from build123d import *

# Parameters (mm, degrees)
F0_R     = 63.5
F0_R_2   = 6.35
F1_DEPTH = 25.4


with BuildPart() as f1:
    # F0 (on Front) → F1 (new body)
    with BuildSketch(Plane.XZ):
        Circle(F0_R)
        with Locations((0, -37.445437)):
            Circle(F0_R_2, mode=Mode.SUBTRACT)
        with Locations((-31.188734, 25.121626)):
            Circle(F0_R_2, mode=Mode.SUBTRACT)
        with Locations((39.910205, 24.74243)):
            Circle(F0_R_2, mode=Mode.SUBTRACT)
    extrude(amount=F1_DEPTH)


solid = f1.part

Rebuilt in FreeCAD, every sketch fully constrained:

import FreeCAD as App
import Part
import Sketcher

V = App.Vector
Q = App.Units.Quantity

doc = App.newDocument("Part")
params = doc.addObject("Spreadsheet::Sheet", "Params")
for row, (alias, value) in enumerate([
    ("sketch1_diameter", "5 in"),
    ("sketch1_diameter2", "0.5 in"),
    ("pad1_length", "1 in"),
], start=1):
    params.set(f"A{row}", alias)
    params.set(f"B{row}", "=" + value)
    params.setAlias(f"B{row}", alias)

body = doc.addObject("PartDesign::Body", "Body")

# Sketch on XZ plane
sketch1 = body.newObject("Sketcher::SketchObject", "Sketch")
sketch1.AttachmentSupport = (doc.getObject("XZ_Plane"), [""])
sketch1.MapMode = "FlatFace"
sketch1.addGeometry(Part.Circle(V(0, 0, 0), V(0, 0, 1), 63.5), False)
sketch1.addGeometry(Part.Circle(V(0, -37.445437, 0), V(0, 0, 1), 6.35), False)
sketch1.addGeometry(Part.Circle(V(-31.188734, 25.121626, 0), V(0, 0, 1), 6.35), False)
sketch1.addGeometry(Part.Circle(V(39.910205, 24.74243, 0), V(0, 0, 1), 6.35), False)
sketch1.addConstraint(Sketcher.Constraint("Coincident", 0, 3, -1, 1))
sketch1.addConstraint(Sketcher.Constraint("Equal", 1, 2))
sketch1.addConstraint(Sketcher.Constraint("Equal", 2, 3))
sketch1.addConstraint(Sketcher.Constraint("PointOnObject", 1, 3, -2))
sketch1.addConstraint(Sketcher.Constraint("Diameter", 0, Q("5 in")))
sketch1.addConstraint(Sketcher.Constraint("Diameter", 1, Q("0.5 in")))
sketch1.addConstraint(Sketcher.Constraint("DistanceY", -1, 1, 3, 3, Q("24.74243 mm")))
sketch1.addConstraint(Sketcher.Constraint("DistanceX", 2, 3, 3, 3, Q("71.098939 mm")))
sketch1.addConstraint(Sketcher.Constraint("DistanceY", 1, 3, -1, 1, Q("37.445437 mm")))
sketch1.addConstraint(Sketcher.Constraint("DistanceX", 2, 3, -1, 1, Q("31.188734 mm")))
sketch1.addConstraint(Sketcher.Constraint("DistanceY", -1, 1, 2, 3, Q("25.121626 mm")))
sketch1.setExpression("Constraints[4]", "Params.sketch1_diameter")
sketch1.setExpression("Constraints[5]", "Params.sketch1_diameter2")
pad1 = body.newObject("PartDesign::Pad", "Pad")
pad1.Profile = sketch1
pad1.setExpression("Length", "Params.pad1_length")

doc.recompute()
